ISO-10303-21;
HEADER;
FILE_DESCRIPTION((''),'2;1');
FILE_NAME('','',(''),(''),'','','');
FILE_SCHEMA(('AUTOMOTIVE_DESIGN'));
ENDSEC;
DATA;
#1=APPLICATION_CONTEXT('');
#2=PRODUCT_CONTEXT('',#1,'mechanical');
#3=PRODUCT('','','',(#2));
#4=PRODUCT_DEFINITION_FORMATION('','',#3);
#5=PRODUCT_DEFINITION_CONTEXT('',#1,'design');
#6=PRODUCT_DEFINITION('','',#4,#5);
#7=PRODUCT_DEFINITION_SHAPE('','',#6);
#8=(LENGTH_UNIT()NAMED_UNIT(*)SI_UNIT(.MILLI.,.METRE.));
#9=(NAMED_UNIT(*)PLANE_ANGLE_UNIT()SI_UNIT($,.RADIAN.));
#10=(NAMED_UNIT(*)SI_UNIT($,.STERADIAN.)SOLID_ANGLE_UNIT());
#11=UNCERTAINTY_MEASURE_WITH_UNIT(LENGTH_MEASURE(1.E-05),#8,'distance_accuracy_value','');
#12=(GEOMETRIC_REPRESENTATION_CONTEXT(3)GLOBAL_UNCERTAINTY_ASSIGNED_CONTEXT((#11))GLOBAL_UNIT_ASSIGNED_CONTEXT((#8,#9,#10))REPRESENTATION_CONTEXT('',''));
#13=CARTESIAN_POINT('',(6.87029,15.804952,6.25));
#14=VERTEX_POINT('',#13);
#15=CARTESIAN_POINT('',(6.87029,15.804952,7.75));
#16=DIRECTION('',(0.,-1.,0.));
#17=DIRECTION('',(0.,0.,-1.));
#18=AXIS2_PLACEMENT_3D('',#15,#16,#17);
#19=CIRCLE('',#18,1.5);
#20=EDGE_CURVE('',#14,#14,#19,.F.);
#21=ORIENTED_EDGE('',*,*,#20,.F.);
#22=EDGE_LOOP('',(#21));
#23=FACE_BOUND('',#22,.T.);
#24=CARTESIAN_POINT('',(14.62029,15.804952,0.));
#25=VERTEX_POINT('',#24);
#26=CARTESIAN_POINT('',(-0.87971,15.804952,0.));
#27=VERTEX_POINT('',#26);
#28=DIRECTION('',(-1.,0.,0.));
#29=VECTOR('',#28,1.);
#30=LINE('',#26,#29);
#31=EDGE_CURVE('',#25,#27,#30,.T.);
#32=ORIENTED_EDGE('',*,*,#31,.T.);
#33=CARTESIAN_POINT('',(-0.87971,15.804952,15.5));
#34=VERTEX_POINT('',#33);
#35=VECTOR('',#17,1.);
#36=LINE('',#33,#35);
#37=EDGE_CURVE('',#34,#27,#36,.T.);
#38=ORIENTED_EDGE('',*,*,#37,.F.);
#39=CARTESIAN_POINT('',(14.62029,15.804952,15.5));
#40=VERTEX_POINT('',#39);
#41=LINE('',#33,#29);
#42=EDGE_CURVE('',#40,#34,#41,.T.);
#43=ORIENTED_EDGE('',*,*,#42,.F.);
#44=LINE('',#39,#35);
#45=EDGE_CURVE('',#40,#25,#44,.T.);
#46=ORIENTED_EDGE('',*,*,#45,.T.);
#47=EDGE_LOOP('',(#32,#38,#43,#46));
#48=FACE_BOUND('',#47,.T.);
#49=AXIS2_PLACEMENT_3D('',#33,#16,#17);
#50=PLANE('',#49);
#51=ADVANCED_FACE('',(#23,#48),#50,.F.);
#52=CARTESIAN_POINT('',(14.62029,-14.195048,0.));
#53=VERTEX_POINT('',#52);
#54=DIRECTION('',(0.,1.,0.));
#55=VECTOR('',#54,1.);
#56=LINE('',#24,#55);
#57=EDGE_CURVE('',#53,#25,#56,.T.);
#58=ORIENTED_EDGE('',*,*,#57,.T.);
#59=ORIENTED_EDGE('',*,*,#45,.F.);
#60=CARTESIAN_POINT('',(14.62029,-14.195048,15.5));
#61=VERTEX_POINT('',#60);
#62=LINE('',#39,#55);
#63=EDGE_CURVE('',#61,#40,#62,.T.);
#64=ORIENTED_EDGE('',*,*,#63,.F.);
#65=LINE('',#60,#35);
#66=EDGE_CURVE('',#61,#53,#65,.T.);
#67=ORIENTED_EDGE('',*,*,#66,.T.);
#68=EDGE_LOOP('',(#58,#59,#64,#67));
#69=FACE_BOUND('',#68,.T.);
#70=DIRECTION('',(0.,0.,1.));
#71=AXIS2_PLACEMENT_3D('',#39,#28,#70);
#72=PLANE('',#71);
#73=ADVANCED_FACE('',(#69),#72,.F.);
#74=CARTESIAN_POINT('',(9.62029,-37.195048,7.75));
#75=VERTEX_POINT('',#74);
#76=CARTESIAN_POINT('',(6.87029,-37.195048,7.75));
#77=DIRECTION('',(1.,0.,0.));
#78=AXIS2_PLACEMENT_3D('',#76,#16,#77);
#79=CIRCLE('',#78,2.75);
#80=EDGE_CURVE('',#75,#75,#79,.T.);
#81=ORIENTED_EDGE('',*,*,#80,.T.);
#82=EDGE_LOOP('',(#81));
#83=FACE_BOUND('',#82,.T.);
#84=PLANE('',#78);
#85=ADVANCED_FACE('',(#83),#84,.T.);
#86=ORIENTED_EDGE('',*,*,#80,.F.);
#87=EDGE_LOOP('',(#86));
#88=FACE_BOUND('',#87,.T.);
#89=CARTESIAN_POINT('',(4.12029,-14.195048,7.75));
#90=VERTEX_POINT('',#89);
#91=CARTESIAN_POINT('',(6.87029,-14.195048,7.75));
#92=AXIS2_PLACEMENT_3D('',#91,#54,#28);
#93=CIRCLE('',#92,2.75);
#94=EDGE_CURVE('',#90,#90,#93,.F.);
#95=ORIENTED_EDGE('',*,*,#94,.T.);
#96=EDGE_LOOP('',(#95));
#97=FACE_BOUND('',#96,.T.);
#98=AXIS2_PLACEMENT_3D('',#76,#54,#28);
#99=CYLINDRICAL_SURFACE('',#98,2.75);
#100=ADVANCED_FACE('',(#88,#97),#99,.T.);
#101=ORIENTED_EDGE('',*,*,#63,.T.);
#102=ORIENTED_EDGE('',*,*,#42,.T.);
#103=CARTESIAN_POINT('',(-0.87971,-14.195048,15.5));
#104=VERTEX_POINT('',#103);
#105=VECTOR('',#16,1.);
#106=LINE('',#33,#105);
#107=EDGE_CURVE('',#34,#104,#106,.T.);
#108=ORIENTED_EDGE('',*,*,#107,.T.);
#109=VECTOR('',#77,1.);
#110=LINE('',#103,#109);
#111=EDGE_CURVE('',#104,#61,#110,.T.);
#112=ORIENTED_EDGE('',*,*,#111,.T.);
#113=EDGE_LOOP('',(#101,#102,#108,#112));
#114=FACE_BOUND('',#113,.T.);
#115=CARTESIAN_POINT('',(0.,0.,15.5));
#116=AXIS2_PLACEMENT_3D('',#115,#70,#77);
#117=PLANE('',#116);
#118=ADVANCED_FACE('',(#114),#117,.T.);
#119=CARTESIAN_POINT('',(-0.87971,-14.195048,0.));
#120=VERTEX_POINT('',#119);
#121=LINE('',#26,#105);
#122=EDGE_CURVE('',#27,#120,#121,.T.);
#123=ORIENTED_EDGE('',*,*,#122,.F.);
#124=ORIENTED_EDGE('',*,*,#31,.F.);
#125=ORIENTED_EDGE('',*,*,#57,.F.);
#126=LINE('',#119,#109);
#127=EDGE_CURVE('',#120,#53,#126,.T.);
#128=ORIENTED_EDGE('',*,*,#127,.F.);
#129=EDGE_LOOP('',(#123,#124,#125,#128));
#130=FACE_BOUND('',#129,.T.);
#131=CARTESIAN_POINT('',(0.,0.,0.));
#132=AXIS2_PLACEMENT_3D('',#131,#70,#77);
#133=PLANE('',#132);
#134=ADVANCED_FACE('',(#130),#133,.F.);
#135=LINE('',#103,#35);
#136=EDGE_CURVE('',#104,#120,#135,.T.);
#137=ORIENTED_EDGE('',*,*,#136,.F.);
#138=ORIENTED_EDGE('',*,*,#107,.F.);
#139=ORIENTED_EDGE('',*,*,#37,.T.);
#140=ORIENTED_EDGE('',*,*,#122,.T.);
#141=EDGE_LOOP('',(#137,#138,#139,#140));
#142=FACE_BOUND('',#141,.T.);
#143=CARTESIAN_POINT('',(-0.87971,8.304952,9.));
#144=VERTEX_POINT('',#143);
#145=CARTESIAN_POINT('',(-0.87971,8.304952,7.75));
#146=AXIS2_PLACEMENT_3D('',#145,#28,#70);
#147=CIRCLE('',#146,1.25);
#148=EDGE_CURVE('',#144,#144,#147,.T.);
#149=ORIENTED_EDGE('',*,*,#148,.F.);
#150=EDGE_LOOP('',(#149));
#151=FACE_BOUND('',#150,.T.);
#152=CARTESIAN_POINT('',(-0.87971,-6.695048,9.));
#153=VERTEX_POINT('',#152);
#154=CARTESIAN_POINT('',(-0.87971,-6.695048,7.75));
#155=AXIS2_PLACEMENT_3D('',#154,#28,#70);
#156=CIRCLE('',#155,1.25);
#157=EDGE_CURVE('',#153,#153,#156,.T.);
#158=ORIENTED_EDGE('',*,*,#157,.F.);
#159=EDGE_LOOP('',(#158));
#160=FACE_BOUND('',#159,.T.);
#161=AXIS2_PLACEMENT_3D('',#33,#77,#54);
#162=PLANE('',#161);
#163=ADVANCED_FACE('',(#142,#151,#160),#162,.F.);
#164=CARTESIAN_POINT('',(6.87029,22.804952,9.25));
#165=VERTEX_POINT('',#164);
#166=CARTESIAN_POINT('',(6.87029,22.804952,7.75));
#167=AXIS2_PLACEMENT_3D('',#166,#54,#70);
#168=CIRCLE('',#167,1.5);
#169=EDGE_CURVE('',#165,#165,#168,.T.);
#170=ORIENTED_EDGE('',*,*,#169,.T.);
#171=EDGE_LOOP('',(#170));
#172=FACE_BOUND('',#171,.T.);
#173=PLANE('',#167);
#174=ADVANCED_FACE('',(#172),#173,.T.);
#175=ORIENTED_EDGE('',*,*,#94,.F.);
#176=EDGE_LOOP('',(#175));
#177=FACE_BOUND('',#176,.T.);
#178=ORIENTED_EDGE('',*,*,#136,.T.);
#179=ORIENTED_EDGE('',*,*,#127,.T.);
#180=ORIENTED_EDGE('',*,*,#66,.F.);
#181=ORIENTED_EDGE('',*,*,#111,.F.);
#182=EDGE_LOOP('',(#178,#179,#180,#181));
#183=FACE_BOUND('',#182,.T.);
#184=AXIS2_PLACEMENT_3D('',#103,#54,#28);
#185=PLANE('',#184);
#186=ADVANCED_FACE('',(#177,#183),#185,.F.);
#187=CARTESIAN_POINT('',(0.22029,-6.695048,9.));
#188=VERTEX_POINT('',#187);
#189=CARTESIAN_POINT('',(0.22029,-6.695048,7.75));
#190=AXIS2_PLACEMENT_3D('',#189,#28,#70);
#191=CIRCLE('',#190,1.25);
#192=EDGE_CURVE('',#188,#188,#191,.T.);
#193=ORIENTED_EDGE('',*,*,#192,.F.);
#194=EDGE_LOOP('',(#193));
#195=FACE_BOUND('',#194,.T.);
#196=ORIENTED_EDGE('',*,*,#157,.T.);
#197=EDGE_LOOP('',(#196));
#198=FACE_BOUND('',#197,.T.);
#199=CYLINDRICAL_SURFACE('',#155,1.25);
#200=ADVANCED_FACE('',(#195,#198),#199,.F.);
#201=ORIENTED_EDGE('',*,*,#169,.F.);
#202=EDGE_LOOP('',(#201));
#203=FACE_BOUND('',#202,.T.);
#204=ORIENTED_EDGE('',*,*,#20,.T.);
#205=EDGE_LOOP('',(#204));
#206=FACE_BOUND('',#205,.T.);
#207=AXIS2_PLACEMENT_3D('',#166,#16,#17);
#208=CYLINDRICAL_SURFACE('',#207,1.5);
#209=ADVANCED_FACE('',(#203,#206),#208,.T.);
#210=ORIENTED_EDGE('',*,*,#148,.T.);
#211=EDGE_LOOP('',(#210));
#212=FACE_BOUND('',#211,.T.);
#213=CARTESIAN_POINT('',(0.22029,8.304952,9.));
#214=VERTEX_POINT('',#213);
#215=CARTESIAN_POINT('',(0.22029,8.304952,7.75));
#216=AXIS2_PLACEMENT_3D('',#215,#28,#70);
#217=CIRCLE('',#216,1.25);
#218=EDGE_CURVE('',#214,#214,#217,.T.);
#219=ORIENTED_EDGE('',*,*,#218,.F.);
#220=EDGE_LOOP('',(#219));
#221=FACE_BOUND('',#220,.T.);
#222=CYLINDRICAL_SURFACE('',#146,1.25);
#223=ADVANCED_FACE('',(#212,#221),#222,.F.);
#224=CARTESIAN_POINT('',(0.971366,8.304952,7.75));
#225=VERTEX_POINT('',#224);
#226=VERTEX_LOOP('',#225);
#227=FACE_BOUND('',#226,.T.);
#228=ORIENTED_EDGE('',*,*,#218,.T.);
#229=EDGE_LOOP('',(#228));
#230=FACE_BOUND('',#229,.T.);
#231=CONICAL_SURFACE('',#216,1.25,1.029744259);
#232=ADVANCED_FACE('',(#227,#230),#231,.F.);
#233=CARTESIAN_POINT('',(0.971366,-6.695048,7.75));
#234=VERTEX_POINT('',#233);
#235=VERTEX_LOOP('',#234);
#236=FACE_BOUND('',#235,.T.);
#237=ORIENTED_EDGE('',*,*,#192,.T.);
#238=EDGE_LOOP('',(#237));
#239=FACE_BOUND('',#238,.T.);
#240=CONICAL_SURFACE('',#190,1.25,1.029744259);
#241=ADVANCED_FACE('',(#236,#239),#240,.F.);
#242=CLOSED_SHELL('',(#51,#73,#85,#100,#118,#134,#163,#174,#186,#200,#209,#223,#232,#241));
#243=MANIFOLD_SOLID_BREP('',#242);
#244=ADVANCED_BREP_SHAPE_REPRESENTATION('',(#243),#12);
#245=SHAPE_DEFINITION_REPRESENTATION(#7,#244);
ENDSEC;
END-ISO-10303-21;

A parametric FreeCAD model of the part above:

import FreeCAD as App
import Part
import Sketcher


def add_polygon(sketch, points):
    """Adds a closed chain of lines whose ends are joined by coincident constraints."""
    first, n = sketch.GeometryCount, len(points)
    for a, b in zip(points, points[1:] + points[:1]):
        sketch.addGeometry(Part.LineSegment(App.Vector(*a, 0), App.Vector(*b, 0)), False)
    for i in range(n):
        sketch.addConstraint(Sketcher.Constraint("Coincident", first + i, 2, first + (i + 1) % n, 1))

doc = App.newDocument("Part")
params = doc.addObject("Spreadsheet::Sheet", "Params")
for row, (alias, value) in enumerate([
    ("sketch1_height", "30 mm"),
    ("sketch1_width", "15.5 mm"),
    ("pad1_length", "15.5 mm"),
    ("sketch2_diameter", "3 mm"),
    ("pad2_length", "7 mm"),
    ("sketch3_diameter", "5.5 mm"),
    ("pad3_length", "23 mm"),
    ("sketch4_diameter", "2.5 mm"),
    ("hole_diameter", "2.5 mm"),
    ("hole_depth", "1.1 mm"),
], start=1):
    params.set(f"A{row}", alias)
    params.set(f"B{row}", "=" + value)
    params.setAlias(f"B{row}", alias)

body = doc.addObject("PartDesign::Body", "Body")

sketch1 = body.newObject("Sketcher::SketchObject", "Sketch")
sketch1.AttachmentSupport = (doc.getObject("XY_Plane"), [""])
sketch1.MapMode = "FlatFace"
add_polygon(sketch1, [(-0.87971, 15.804952), (-0.87971, -14.195048), (14.62029, -14.195048), (14.62029, 15.804952)])
sketch1.addConstraint([
    Sketcher.Constraint("Vertical", 0),
    Sketcher.Constraint("Horizontal", 1),
    Sketcher.Constraint("Vertical", 2),
    Sketcher.Constraint("Horizontal", 3),
    Sketcher.Constraint("DistanceY", 0, 2, 0, 1, 30.0),
    Sketcher.Constraint("DistanceX", 1, 1, 1, 2, 15.5),
    Sketcher.Constraint("DistanceX", 0, 2, -1, 1, 0.87971),
    Sketcher.Constraint("DistanceY", 0, 2, -1, 1, 14.195048),
])
sketch1.setExpression("Constraints[8]", "Params.sketch1_height")
sketch1.setExpression("Constraints[9]", "Params.sketch1_width")
pad1 = body.newObject("PartDesign::Pad", "Pad")
pad1.Profile = sketch1
pad1.setExpression("Length", "Params.pad1_length")

sketch2 = body.newObject("Sketcher::SketchObject", "Sketch001")
sketch2.AttachmentSupport = (doc.getObject("XZ_Plane"), [""])
sketch2.MapMode = "FlatFace"
sketch2.AttachmentOffset = App.Placement(App.Vector(0, 0, -15.804952), App.Rotation())
sketch2.addGeometry(Part.Circle(App.Vector(6.87029, 7.75, 0), App.Vector(0, 0, 1), 1.5), False)
sketch2.addConstraint([
    Sketcher.Constraint("Diameter", 0, 3.0),
    Sketcher.Constraint("DistanceY", -1, 1, 0, 3, 7.75),
    Sketcher.Constraint("DistanceX", -1, 1, 0, 3, 6.87029),
])
sketch2.setExpression("Constraints[0]", "Params.sketch2_diameter")
pad2 = body.newObject("PartDesign::Pad", "Pad001")
pad2.Profile = sketch2
pad2.setExpression("Length", "Params.pad2_length")
pad2.Reversed = True

sketch3 = body.newObject("Sketcher::SketchObject", "Sketch002")
sketch3.AttachmentSupport = (doc.getObject("XZ_Plane"), [""])
sketch3.MapMode = "FlatFace"
sketch3.AttachmentOffset = App.Placement(App.Vector(0, 0, 14.195048), App.Rotation())
sketch3.addGeometry(Part.Circle(App.Vector(6.87029, 7.75, 0), App.Vector(0, 0, 1), 2.75), False)
sketch3.addConstraint([
    Sketcher.Constraint("Diameter", 0, 5.5),
    Sketcher.Constraint("DistanceY", -1, 1, 0, 3, 7.75),
    Sketcher.Constraint("DistanceX", -1, 1, 0, 3, 6.87029),
])
sketch3.setExpression("Constraints[0]", "Params.sketch3_diameter")
pad3 = body.newObject("PartDesign::Pad", "Pad002")
pad3.Profile = sketch3
pad3.setExpression("Length", "Params.pad3_length")

sketch4 = body.newObject("Sketcher::SketchObject", "Sketch003")
sketch4.AttachmentSupport = (doc.getObject("YZ_Plane"), [""])
sketch4.MapMode = "FlatFace"
sketch4.AttachmentOffset = App.Placement(App.Vector(0, 0, -0.87971), App.Rotation())
sketch4.addGeometry([
    Part.Circle(App.Vector(8.304952, 7.75, 0), App.Vector(0, 0, 1), 1.25),
    Part.Circle(App.Vector(-6.695048, 7.75, 0), App.Vector(0, 0, 1), 1.25),
], False)
sketch4.addConstraint([
    Sketcher.Constraint("Equal", 0, 1),
    Sketcher.Constraint("Horizontal", 0, 3, 1, 3),
    Sketcher.Constraint("Diameter", 0, 2.5),
    Sketcher.Constraint("DistanceX", 1, 3, 0, 3, 15.0),
    Sketcher.Constraint("DistanceY", -1, 1, 0, 3, 7.75),
    Sketcher.Constraint("DistanceX", -1, 1, 0, 3, 8.304952),
])
sketch4.setExpression("Constraints[2]", "Params.sketch4_diameter")
doc.recompute()
hole = body.newObject("PartDesign::Hole", "Hole")
hole.Profile = sketch4
hole.ThreadType = "None"
hole.setExpression("Diameter", "Params.hole_diameter")
hole.DepthType = "Dimension"
hole.setExpression("Depth", "Params.hole_depth")
hole.DrillPoint = "Angled"
hole.DrillPointAngle = 118
hole.Reversed = True

doc.recompute()
